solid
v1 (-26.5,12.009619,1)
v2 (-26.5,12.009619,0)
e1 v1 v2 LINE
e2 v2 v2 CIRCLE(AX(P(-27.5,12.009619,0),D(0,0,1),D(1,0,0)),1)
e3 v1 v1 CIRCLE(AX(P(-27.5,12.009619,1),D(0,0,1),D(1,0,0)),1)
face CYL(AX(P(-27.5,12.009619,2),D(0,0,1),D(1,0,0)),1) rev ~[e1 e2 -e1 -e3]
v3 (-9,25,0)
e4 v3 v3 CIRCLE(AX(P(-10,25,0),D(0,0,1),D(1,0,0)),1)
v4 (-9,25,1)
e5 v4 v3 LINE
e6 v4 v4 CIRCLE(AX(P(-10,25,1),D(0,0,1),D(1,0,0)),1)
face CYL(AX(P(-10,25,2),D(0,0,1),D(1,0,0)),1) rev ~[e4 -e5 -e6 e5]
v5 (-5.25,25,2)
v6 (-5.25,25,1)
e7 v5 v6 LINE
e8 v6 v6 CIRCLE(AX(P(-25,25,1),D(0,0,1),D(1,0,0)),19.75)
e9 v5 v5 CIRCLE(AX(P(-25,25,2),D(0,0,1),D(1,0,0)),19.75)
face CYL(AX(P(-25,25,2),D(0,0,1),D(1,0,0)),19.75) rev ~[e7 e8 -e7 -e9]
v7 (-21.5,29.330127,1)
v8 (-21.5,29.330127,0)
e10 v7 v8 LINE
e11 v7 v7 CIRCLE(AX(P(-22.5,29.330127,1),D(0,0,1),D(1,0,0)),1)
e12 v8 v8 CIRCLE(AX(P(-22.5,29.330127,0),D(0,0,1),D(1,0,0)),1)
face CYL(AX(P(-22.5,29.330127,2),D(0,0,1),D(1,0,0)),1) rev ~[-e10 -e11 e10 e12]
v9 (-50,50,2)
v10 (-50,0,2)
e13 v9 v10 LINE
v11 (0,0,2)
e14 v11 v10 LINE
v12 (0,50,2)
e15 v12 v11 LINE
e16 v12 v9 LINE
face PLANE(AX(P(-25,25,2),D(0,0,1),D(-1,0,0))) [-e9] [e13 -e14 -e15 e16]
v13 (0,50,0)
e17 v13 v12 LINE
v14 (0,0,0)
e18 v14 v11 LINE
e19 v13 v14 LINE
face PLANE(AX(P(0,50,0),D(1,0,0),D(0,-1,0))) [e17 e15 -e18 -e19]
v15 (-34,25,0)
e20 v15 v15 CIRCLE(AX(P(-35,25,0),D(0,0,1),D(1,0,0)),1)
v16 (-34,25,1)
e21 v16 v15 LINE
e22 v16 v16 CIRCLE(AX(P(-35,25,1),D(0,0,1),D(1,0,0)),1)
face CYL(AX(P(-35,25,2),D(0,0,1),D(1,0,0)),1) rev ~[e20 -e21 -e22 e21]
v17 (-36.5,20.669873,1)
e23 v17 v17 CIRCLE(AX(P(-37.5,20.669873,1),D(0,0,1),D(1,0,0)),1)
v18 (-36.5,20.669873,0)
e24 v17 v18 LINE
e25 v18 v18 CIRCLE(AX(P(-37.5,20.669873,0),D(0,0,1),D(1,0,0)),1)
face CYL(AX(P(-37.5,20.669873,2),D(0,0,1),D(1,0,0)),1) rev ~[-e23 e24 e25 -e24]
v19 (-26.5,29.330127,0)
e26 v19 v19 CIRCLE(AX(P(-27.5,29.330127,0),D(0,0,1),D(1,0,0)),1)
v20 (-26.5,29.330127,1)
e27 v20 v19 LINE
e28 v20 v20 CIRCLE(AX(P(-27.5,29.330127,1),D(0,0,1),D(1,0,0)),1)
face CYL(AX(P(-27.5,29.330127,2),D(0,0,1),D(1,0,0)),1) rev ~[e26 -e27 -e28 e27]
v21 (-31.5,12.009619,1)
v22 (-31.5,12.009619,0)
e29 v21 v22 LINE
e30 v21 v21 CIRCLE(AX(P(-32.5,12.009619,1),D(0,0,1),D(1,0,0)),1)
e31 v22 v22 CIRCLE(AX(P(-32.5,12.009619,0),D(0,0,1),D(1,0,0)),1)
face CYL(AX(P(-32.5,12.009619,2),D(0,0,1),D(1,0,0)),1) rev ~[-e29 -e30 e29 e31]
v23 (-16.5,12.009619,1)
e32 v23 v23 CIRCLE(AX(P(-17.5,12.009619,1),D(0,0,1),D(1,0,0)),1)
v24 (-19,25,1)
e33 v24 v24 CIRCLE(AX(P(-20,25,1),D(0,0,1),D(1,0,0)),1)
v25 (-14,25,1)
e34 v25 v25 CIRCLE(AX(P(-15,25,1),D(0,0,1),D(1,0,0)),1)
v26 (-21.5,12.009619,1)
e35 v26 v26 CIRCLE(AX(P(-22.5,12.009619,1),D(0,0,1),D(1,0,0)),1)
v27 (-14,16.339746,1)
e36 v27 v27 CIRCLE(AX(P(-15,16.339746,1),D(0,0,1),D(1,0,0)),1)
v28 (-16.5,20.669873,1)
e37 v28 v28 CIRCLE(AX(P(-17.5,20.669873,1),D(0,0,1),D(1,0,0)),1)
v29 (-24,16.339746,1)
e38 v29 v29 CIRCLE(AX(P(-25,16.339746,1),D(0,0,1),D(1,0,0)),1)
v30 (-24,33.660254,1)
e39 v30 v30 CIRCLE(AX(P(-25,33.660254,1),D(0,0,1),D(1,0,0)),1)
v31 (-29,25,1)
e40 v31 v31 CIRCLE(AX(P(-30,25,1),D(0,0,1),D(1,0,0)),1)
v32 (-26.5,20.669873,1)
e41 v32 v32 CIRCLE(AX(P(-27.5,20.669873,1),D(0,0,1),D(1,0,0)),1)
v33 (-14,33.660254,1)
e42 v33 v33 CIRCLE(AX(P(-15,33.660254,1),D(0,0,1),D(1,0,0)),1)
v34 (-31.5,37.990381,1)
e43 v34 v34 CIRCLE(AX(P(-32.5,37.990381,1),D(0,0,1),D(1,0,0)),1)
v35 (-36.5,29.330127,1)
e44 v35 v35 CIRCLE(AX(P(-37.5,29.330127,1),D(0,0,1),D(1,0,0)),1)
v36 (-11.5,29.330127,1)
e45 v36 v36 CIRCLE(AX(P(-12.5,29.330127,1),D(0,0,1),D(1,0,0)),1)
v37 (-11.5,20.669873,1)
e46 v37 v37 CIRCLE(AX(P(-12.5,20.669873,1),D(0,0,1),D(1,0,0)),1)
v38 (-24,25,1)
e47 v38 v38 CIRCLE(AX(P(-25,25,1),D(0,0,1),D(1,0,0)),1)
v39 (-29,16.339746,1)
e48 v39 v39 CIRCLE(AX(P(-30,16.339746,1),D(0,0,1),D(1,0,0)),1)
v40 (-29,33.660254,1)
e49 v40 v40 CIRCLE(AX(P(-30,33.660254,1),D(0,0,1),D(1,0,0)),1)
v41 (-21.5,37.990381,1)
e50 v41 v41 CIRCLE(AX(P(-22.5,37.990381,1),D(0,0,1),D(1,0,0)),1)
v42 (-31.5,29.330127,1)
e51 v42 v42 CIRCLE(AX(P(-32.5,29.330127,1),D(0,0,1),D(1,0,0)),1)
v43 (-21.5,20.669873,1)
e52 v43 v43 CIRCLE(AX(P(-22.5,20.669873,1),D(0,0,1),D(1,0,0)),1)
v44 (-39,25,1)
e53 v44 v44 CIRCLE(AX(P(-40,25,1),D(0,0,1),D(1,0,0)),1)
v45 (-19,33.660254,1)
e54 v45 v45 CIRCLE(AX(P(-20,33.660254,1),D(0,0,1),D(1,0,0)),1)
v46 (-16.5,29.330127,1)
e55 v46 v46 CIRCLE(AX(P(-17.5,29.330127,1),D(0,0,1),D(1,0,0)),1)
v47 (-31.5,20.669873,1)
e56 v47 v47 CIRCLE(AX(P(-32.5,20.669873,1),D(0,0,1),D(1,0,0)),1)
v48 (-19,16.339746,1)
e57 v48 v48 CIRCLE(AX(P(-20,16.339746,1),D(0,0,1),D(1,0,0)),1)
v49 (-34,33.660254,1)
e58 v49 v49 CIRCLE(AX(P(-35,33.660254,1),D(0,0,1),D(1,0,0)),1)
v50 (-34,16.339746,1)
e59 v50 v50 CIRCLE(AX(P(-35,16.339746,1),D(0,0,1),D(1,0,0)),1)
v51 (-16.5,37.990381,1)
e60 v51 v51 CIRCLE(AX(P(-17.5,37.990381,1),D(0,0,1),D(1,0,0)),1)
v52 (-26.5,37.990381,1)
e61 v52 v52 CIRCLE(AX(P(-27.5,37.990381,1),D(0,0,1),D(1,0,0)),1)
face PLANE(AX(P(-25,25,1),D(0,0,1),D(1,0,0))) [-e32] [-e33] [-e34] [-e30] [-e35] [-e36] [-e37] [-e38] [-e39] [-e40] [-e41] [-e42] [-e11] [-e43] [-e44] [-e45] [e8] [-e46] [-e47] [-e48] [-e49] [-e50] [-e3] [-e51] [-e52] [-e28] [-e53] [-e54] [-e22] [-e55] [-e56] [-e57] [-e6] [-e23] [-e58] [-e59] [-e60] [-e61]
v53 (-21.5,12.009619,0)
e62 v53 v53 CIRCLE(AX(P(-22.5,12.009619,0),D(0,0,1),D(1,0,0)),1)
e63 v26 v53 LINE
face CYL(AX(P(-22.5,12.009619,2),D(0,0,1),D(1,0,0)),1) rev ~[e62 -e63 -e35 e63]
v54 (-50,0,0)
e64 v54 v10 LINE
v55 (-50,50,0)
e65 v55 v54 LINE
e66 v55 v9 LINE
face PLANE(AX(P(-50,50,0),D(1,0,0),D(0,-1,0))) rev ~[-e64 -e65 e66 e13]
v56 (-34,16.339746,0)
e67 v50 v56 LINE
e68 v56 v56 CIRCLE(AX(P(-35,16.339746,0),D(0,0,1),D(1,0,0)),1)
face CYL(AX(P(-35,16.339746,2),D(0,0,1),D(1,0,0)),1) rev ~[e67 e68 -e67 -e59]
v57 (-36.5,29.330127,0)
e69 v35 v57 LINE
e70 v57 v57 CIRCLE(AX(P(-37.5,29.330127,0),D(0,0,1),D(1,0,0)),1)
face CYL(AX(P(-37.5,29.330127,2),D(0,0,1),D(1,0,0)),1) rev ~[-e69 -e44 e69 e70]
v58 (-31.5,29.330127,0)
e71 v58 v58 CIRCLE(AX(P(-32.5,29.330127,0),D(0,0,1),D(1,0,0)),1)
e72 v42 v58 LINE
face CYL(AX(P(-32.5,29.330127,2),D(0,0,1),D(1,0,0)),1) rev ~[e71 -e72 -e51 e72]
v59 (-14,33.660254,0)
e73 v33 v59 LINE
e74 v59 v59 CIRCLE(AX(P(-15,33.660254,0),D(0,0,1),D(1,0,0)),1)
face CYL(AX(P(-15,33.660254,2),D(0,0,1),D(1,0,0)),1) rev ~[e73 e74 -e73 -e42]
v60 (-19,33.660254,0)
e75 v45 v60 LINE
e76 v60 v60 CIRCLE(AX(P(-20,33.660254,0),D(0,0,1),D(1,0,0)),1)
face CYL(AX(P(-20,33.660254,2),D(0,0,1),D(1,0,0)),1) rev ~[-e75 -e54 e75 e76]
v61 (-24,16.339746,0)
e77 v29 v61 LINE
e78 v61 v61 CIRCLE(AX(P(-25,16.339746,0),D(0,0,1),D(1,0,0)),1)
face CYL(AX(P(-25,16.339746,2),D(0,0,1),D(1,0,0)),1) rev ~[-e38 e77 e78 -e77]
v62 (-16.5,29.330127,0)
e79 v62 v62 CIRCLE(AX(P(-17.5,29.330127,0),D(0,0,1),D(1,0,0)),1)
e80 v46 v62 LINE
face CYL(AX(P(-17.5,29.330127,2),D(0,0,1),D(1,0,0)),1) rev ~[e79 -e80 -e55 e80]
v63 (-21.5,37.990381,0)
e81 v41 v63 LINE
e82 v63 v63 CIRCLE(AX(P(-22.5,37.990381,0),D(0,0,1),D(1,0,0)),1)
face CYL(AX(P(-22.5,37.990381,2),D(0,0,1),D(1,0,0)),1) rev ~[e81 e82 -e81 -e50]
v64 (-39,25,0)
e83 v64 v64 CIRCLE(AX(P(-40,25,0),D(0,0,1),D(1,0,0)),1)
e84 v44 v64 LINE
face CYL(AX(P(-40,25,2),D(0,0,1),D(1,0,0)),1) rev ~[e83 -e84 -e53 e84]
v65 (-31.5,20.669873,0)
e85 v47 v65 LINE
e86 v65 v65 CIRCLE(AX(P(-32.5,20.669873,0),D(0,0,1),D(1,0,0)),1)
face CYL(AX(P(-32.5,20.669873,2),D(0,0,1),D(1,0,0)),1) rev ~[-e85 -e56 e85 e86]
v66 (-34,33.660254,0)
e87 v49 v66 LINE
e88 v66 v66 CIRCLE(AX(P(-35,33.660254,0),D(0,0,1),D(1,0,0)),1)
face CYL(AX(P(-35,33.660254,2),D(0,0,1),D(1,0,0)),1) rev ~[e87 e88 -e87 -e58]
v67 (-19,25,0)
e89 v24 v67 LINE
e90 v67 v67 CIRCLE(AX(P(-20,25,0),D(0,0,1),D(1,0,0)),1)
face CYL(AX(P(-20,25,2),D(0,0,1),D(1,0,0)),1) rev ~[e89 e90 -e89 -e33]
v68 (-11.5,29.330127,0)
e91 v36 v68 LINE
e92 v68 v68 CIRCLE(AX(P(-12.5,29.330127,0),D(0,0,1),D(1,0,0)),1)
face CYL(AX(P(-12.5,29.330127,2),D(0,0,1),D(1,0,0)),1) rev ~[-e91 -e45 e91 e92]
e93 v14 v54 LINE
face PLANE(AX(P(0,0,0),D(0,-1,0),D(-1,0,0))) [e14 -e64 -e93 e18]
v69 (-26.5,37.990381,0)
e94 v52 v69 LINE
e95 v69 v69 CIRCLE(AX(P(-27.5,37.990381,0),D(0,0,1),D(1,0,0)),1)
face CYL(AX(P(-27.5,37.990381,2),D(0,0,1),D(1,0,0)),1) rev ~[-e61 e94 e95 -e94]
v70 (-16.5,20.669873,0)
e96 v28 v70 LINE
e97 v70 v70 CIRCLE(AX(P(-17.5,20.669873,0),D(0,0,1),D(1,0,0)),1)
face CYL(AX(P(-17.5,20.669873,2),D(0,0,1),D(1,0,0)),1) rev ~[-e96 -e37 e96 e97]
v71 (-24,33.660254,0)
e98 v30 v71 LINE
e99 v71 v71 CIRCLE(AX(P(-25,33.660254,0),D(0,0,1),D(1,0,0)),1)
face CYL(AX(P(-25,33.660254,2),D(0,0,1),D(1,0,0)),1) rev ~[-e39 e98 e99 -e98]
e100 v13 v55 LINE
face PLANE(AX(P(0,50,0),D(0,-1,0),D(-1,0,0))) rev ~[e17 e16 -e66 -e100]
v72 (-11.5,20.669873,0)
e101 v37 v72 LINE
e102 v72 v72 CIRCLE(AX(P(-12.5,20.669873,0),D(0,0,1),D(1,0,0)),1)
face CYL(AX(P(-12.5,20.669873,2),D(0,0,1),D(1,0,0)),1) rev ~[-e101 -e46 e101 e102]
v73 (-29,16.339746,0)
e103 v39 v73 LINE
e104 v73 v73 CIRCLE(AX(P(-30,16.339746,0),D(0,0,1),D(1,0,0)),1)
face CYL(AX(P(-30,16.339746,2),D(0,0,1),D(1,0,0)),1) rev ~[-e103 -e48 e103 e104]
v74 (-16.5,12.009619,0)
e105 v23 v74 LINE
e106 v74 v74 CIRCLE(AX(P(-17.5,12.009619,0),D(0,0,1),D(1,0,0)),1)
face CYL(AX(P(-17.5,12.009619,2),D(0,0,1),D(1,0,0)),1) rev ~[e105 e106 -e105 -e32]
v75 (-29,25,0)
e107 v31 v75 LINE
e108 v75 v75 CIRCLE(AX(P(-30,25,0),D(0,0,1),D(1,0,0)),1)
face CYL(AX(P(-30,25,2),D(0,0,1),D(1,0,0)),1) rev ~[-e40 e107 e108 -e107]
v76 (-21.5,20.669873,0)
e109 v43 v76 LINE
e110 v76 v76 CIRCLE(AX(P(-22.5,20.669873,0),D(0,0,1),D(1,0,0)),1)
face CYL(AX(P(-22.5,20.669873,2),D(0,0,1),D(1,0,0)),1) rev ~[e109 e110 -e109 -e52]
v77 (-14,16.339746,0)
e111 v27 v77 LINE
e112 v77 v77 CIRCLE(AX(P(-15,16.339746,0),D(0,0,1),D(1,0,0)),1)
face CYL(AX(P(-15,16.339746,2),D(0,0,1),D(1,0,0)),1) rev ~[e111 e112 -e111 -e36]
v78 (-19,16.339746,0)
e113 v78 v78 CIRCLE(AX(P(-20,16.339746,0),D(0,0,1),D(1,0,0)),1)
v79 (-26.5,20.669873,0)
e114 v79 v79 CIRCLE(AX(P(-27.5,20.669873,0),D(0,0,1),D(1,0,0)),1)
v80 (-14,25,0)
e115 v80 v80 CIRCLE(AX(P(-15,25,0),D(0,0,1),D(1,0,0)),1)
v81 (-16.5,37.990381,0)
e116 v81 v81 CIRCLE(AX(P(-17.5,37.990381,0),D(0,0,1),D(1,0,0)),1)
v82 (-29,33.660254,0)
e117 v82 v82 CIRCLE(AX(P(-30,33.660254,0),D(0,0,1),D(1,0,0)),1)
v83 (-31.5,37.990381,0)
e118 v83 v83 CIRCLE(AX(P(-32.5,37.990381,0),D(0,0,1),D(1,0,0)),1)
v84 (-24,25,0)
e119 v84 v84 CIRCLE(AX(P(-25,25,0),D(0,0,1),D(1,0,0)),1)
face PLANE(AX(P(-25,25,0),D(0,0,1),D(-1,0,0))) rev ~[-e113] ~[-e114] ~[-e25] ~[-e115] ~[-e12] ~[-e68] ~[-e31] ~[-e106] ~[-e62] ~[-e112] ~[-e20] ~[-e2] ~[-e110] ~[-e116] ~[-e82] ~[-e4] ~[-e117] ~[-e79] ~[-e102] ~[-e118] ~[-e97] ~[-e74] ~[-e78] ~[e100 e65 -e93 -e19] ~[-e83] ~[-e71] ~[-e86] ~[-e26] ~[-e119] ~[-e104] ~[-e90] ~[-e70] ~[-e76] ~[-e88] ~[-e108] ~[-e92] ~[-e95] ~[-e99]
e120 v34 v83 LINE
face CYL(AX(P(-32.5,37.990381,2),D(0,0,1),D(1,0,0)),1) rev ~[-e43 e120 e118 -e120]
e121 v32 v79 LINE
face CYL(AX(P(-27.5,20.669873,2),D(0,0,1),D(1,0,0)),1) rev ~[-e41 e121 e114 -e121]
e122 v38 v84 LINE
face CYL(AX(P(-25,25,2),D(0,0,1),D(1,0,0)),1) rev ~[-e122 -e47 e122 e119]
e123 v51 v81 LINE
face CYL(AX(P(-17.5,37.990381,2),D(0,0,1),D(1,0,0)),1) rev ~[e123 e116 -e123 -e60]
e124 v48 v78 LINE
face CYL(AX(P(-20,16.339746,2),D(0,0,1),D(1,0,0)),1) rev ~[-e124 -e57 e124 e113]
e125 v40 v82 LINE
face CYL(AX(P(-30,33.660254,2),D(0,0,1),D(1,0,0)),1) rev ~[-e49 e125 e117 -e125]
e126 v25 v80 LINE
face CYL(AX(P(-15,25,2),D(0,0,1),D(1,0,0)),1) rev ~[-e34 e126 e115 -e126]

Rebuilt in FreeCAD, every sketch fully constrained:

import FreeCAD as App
import Part
import Sketcher

doc = App.newDocument("Part")
body = doc.addObject("PartDesign::Body", "Body")

sketch1 = body.newObject("Sketcher::SketchObject", "Sketch")
sketch1.AttachmentSupport = (doc.getObject("XY_Plane"), [""])
sketch1.MapMode = "FlatFace"
sketch1.addGeometry([
    Part.LineSegment(App.Vector(0, 0, 0), App.Vector(0, 50, 0)),
    Part.LineSegment(App.Vector(0, 50, 0), App.Vector(-50, 50, 0)),
    Part.LineSegment(App.Vector(-50, 50, 0), App.Vector(-50, 0, 0)),
    Part.LineSegment(App.Vector(-50, 0, 0), App.Vector(0, 0, 0)),
], False)
sketch1.addConstraint([
    Sketcher.Constraint("Coincident", 0, 2, 1, 1),
    Sketcher.Constraint("Coincident", 1, 2, 2, 1),
    Sketcher.Constraint("Coincident", 2, 2, 3, 1),
    Sketcher.Constraint("Coincident", 3, 2, 0, 1),
    Sketcher.Constraint("Vertical", 0),
    Sketcher.Constraint("Horizontal", 1),
    Sketcher.Constraint("Vertical", 2),
    Sketcher.Constraint("Horizontal", 3),
    Sketcher.Constraint("Coincident", 3, 2, -1, 1),
    Sketcher.Constraint("Equal", 3, 0),
    Sketcher.Constraint("DistanceX", 1, 2, 1, 1, 50.0),
])
pad1 = body.newObject("PartDesign::Pad", "Pad")
pad1.Profile = sketch1
pad1.Length = 2

sketch2 = body.newObject("Sketcher::SketchObject", "Sketch001")
sketch2.AttachmentSupport = (doc.getObject("XY_Plane"), [""])
sketch2.MapMode = "FlatFace"
sketch2.AttachmentOffset = App.Placement(App.Vector(0, 0, 2), App.Rotation())
sketch2.addGeometry([
    Part.Circle(App.Vector(-25, 25, 0), App.Vector(0, 0, 1), 1),
    Part.Circle(App.Vector(-20, 25, 0), App.Vector(0, 0, 1), 1),
    Part.Circle(App.Vector(-15, 25, 0), App.Vector(0, 0, 1), 1),
    Part.Circle(App.Vector(-10, 25, 0), App.Vector(0, 0, 1), 1),
    Part.Circle(App.Vector(-22.5, 20.7, 0), App.Vector(0, 0, 1), 1),
    Part.Circle(App.Vector(-20, 16.3, 0), App.Vector(0, 0, 1), 1),
    Part.Circle(App.Vector(-17.5, 12, 0), App.Vector(0, 0, 1), 1),
    Part.Circle(App.Vector(-27.5, 20.7, 0), App.Vector(0, 0, 1), 1),
    Part.Circle(App.Vector(-30, 16.3, 0), App.Vector(0, 0, 1), 1),
    Part.Circle(App.Vector(-32.5, 12, 0), App.Vector(0, 0, 1), 1),
    Part.Circle(App.Vector(-30, 25, 0), App.Vector(0, 0, 1), 1),
    Part.Circle(App.Vector(-35, 25, 0), App.Vector(0, 0, 1), 1),
    Part.Circle(App.Vector(-40, 25, 0), App.Vector(0, 0, 1), 1),
    Part.Circle(App.Vector(-27.5, 29.3, 0), App.Vector(0, 0, 1), 1),
    Part.Circle(App.Vector(-30, 33.7, 0), App.Vector(0, 0, 1), 1),
    Part.Circle(App.Vector(-32.5, 38, 0), App.Vector(0, 0, 1), 1),
    Part.Circle(App.Vector(-22.5, 29.3, 0), App.Vector(0, 0, 1), 1),
    Part.Circle(App.Vector(-20, 33.7, 0), App.Vector(0, 0, 1), 1),
    Part.Circle(App.Vector(-17.5, 38, 0), App.Vector(0, 0, 1), 1),
    Part.Circle(App.Vector(-25, 16.3, 0), App.Vector(0, 0, 1), 1),
    Part.Circle(App.Vector(-27.5, 12, 0), App.Vector(0, 0, 1), 1),
    Part.Circle(App.Vector(-22.5, 12, 0), App.Vector(0, 0, 1), 1),
    Part.Circle(App.Vector(-32.5, 20.7, 0), App.Vector(0, 0, 1), 1),
    Part.Circle(App.Vector(-37.5, 20.7, 0), App.Vector(0, 0, 1), 1),
    Part.Circle(App.Vector(-35, 16.3, 0), App.Vector(0, 0, 1), 1),
    Part.Circle(App.Vector(-32.5, 29.3, 0), App.Vector(0, 0, 1), 1),
    Part.Circle(App.Vector(-35, 33.7, 0), App.Vector(0, 0, 1), 1),
    Part.Circle(App.Vector(-37.5, 29.3, 0), App.Vector(0, 0, 1), 1),
    Part.Circle(App.Vector(-25, 33.7, 0), App.Vector(0, 0, 1), 1),
    Part.Circle(App.Vector(-22.5, 38, 0), App.Vector(0, 0, 1), 1),
    Part.Circle(App.Vector(-27.5, 38, 0), App.Vector(0, 0, 1), 1),
    Part.Circle(App.Vector(-17.5, 29.3, 0), App.Vector(0, 0, 1), 1),
    Part.Circle(App.Vector(-12.5, 29.3, 0), App.Vector(0, 0, 1), 1),
    Part.Circle(App.Vector(-15, 33.7, 0), App.Vector(0, 0, 1), 1),
    Part.Circle(App.Vector(-17.5, 20.7, 0), App.Vector(0, 0, 1), 1),
    Part.Circle(App.Vector(-15, 16.3, 0), App.Vector(0, 0, 1), 1),
    Part.Circle(App.Vector(-12.5, 20.7, 0), App.Vector(0, 0, 1), 1),
], False)
sketch2.addConstraint([
    Sketcher.Constraint("Equal", 0, 1),
    Sketcher.Constraint("Equal", 1, 2),
    Sketcher.Constraint("Equal", 2, 3),
    Sketcher.Constraint("Equal", 3, 4),
    Sketcher.Constraint("Equal", 4, 5),
    Sketcher.Constraint("Equal", 5, 6),
    Sketcher.Constraint("Equal", 6, 7),
    Sketcher.Constraint("Equal", 7, 8),
    Sketcher.Constraint("Equal", 8, 9),
    Sketcher.Constraint("Equal", 9, 10),
    Sketcher.Constraint("Equal", 10, 11),
    Sketcher.Constraint("Equal", 11, 12),
    Sketcher.Constraint("Equal", 12, 13),
    Sketcher.Constraint("Equal", 13, 14),
    Sketcher.Constraint("Equal", 14, 15),
    Sketcher.Constraint("Equal", 15, 16),
    Sketcher.Constraint("Equal", 16, 17),
    Sketcher.Constraint("Equal", 17, 18),
    Sketcher.Constraint("Equal", 18, 19),
    Sketcher.Constraint("Equal", 19, 20),
    Sketcher.Constraint("Equal", 20, 21),
    Sketcher.Constraint("Equal", 21, 22),
    Sketcher.Constraint("Equal", 22, 23),
    Sketcher.Constraint("Equal", 23, 24),
    Sketcher.Constraint("Equal", 24, 25),
    Sketcher.Constraint("Equal", 25, 26),
    Sketcher.Constraint("Equal", 26, 27),
    Sketcher.Constraint("Equal", 27, 28),
    Sketcher.Constraint("Equal", 28, 29),
    Sketcher.Constraint("Equal", 29, 30),
    Sketcher.Constraint("Equal", 30, 31),
    Sketcher.Constraint("Equal", 31, 32),
    Sketcher.Constraint("Equal", 32, 33),
    Sketcher.Constraint("Equal", 33, 34),
    Sketcher.Constraint("Equal", 34, 35),
    Sketcher.Constraint("Equal", 35, 36),
    Sketcher.Constraint("Horizontal", 0, 3, 1, 3),
    Sketcher.Constraint("Horizontal", 1, 3, 2, 3),
    Sketcher.Constraint("Horizontal", 2, 3, 3, 3),
    Sketcher.Constraint("Horizontal", 4, 3, 7, 3),
    Sketcher.Constraint("Horizontal", 5, 3, 8, 3),
    Sketcher.Constraint("Horizontal", 6, 3, 9, 3),
    Sketcher.Constraint("Horizontal", 3, 3, 10, 3),
    Sketcher.Constraint("Horizontal", 10, 3, 11, 3),
    Sketcher.Constraint("Horizontal", 11, 3, 12, 3),
    Sketcher.Constraint("Horizontal", 13, 3, 16, 3),
    Sketcher.Constraint("Horizontal", 14, 3, 17, 3),
    Sketcher.Constraint("Horizontal", 15, 3, 18, 3),
    Sketcher.Constraint("Horizontal", 8, 3, 19, 3),
    Sketcher.Constraint("Horizontal", 9, 3, 20, 3),
    Sketcher.Constraint("Horizontal", 20, 3, 21, 3),
    Sketcher.Constraint("Horizontal", 7, 3, 22, 3),
    Sketcher.Constraint("Horizontal", 22, 3, 23, 3),
    Sketcher.Constraint("Horizontal", 19, 3, 24, 3),
    Sketcher.Constraint("Horizontal", 16, 3, 25, 3),
    Sketcher.Constraint("Horizontal", 17, 3, 26, 3),
    Sketcher.Constraint("Horizontal", 25, 3, 27, 3),
    Sketcher.Constraint("Horizontal", 26, 3, 28, 3),
    Sketcher.Constraint("Horizontal", 18, 3, 29, 3),
    Sketcher.Constraint("Horizontal", 29, 3, 30, 3),
    Sketcher.Constraint("Horizontal", 27, 3, 31, 3),
    Sketcher.Constraint("Horizontal", 31, 3, 32, 3),
    Sketcher.Constraint("Horizontal", 28, 3, 33, 3),
    Sketcher.Constraint("Horizontal", 23, 3, 34, 3),
    Sketcher.Constraint("Horizontal", 24, 3, 35, 3),
    Sketcher.Constraint("Horizontal", 34, 3, 36, 3),
    Sketcher.Constraint("Vertical", 1, 3, 5, 3),
    Sketcher.Constraint("Vertical", 8, 3, 10, 3),
    Sketcher.Constraint("Vertical", 7, 3, 13, 3),
    Sketcher.Constraint("Vertical", 10, 3, 14, 3),
    Sketcher.Constraint("Vertical", 9, 3, 15, 3),
    Sketcher.Constraint("Vertical", 4, 3, 16, 3),
    Sketcher.Constraint("Vertical", 5, 3, 17, 3),
    Sketcher.Constraint("Vertical", 6, 3, 18, 3),
    Sketcher.Constraint("Vertical", 0, 3, 19, 3),
    Sketcher.Constraint("Vertical", 13, 3, 20, 3),
    Sketcher.Constraint("Vertical", 16, 3, 21, 3),
    Sketcher.Constraint("Vertical", 15, 3, 22, 3),
    Sketcher.Constraint("Vertical", 11, 3, 24, 3),
    Sketcher.Constraint("Vertical", 22, 3, 25, 3),
    Sketcher.Constraint("Vertical", 24, 3, 26, 3),
    Sketcher.Constraint("Vertical", 23, 3, 27, 3),
    Sketcher.Constraint("Vertical", 19, 3, 28, 3),
    Sketcher.Constraint("Vertical", 21, 3, 29, 3),
    Sketcher.Constraint("Vertical", 20, 3, 30, 3),
    Sketcher.Constraint("Vertical", 18, 3, 31, 3),
    Sketcher.Constraint("Vertical", 2, 3, 33, 3),
    Sketcher.Constraint("Vertical", 31, 3, 34, 3),
    Sketcher.Constraint("Vertical", 33, 3, 35, 3),
    Sketcher.Constraint("Vertical", 32, 3, 36, 3),
    Sketcher.Constraint("Diameter", 0, 2.0),
    Sketcher.Constraint("DistanceX", 0, 3, -1, 1, 25.0),
    Sketcher.Constraint("DistanceY", -1, 1, 0, 3, 25.0),
    Sketcher.Constraint("DistanceX", 1, 3, -1, 1, 20.0),
    Sketcher.Constraint("DistanceX", 2, 3, -1, 1, 15.0),
    Sketcher.Constraint("DistanceX", 3, 3, -1, 1, 10.0),
    Sketcher.Constraint("DistanceX", 8, 3, -1, 1, 30.0),
    Sketcher.Constraint("DistanceX", 11, 3, -1, 1, 35.0),
    Sketcher.Constraint("DistanceX", 12, 3, -1, 1, 40.0),
    Sketcher.Constraint("DistanceX", 4, 3, 6, 3, 5.0),
    Sketcher.Constraint("DistanceX", 7, 3, 4, 3, 5.0),
    Sketcher.Constraint("DistanceX", 9, 3, 7, 3, 5.0),
    Sketcher.Constraint("DistanceX", 23, 3, 22, 3, 5.0),
    Sketcher.Constraint("DistanceX", 31, 3, 32, 3, 5.0),
    Sketcher.Constraint("DistanceX", 4, 3, -1, 1, 22.5),
    Sketcher.Constraint("DistanceY", -1, 1, 6, 3, 12.009619),
    Sketcher.Constraint("DistanceY", -1, 1, 15, 3, 37.990381),
    Sketcher.Constraint("DistanceY", -1, 1, 4, 3, 20.669873),
    Sketcher.Constraint("DistanceY", -1, 1, 5, 3, 16.339746),
    Sketcher.Constraint("DistanceY", -1, 1, 13, 3, 29.330127),
    Sketcher.Constraint("DistanceY", -1, 1, 14, 3, 33.660254),
])
pocket1 = body.newObject("PartDesign::Pocket", "Pocket")
pocket1.Profile = sketch2
pocket1.Type = "ThroughAll"

sketch3 = body.newObject("Sketcher::SketchObject", "Sketch002")
sketch3.AttachmentSupport = (doc.getObject("XY_Plane"), [""])
sketch3.MapMode = "FlatFace"
sketch3.AttachmentOffset = App.Placement(App.Vector(0, 0, 2), App.Rotation())
sketch3.addGeometry(Part.Circle(App.Vector(-25, 25, 0), App.Vector(0, 0, 1), 20), False)
sketch3.addConstraint([
    Sketcher.Constraint("Diameter", 0, 39.5),
    Sketcher.Constraint("DistanceX", 0, 3, -1, 1, 25.0),
    Sketcher.Constraint("DistanceY", -1, 1, 0, 3, 25.0),
])
pocket2 = body.newObject("PartDesign::Pocket", "Pocket001")
pocket2.Profile = sketch3
pocket2.Length = 1

doc.recompute()
